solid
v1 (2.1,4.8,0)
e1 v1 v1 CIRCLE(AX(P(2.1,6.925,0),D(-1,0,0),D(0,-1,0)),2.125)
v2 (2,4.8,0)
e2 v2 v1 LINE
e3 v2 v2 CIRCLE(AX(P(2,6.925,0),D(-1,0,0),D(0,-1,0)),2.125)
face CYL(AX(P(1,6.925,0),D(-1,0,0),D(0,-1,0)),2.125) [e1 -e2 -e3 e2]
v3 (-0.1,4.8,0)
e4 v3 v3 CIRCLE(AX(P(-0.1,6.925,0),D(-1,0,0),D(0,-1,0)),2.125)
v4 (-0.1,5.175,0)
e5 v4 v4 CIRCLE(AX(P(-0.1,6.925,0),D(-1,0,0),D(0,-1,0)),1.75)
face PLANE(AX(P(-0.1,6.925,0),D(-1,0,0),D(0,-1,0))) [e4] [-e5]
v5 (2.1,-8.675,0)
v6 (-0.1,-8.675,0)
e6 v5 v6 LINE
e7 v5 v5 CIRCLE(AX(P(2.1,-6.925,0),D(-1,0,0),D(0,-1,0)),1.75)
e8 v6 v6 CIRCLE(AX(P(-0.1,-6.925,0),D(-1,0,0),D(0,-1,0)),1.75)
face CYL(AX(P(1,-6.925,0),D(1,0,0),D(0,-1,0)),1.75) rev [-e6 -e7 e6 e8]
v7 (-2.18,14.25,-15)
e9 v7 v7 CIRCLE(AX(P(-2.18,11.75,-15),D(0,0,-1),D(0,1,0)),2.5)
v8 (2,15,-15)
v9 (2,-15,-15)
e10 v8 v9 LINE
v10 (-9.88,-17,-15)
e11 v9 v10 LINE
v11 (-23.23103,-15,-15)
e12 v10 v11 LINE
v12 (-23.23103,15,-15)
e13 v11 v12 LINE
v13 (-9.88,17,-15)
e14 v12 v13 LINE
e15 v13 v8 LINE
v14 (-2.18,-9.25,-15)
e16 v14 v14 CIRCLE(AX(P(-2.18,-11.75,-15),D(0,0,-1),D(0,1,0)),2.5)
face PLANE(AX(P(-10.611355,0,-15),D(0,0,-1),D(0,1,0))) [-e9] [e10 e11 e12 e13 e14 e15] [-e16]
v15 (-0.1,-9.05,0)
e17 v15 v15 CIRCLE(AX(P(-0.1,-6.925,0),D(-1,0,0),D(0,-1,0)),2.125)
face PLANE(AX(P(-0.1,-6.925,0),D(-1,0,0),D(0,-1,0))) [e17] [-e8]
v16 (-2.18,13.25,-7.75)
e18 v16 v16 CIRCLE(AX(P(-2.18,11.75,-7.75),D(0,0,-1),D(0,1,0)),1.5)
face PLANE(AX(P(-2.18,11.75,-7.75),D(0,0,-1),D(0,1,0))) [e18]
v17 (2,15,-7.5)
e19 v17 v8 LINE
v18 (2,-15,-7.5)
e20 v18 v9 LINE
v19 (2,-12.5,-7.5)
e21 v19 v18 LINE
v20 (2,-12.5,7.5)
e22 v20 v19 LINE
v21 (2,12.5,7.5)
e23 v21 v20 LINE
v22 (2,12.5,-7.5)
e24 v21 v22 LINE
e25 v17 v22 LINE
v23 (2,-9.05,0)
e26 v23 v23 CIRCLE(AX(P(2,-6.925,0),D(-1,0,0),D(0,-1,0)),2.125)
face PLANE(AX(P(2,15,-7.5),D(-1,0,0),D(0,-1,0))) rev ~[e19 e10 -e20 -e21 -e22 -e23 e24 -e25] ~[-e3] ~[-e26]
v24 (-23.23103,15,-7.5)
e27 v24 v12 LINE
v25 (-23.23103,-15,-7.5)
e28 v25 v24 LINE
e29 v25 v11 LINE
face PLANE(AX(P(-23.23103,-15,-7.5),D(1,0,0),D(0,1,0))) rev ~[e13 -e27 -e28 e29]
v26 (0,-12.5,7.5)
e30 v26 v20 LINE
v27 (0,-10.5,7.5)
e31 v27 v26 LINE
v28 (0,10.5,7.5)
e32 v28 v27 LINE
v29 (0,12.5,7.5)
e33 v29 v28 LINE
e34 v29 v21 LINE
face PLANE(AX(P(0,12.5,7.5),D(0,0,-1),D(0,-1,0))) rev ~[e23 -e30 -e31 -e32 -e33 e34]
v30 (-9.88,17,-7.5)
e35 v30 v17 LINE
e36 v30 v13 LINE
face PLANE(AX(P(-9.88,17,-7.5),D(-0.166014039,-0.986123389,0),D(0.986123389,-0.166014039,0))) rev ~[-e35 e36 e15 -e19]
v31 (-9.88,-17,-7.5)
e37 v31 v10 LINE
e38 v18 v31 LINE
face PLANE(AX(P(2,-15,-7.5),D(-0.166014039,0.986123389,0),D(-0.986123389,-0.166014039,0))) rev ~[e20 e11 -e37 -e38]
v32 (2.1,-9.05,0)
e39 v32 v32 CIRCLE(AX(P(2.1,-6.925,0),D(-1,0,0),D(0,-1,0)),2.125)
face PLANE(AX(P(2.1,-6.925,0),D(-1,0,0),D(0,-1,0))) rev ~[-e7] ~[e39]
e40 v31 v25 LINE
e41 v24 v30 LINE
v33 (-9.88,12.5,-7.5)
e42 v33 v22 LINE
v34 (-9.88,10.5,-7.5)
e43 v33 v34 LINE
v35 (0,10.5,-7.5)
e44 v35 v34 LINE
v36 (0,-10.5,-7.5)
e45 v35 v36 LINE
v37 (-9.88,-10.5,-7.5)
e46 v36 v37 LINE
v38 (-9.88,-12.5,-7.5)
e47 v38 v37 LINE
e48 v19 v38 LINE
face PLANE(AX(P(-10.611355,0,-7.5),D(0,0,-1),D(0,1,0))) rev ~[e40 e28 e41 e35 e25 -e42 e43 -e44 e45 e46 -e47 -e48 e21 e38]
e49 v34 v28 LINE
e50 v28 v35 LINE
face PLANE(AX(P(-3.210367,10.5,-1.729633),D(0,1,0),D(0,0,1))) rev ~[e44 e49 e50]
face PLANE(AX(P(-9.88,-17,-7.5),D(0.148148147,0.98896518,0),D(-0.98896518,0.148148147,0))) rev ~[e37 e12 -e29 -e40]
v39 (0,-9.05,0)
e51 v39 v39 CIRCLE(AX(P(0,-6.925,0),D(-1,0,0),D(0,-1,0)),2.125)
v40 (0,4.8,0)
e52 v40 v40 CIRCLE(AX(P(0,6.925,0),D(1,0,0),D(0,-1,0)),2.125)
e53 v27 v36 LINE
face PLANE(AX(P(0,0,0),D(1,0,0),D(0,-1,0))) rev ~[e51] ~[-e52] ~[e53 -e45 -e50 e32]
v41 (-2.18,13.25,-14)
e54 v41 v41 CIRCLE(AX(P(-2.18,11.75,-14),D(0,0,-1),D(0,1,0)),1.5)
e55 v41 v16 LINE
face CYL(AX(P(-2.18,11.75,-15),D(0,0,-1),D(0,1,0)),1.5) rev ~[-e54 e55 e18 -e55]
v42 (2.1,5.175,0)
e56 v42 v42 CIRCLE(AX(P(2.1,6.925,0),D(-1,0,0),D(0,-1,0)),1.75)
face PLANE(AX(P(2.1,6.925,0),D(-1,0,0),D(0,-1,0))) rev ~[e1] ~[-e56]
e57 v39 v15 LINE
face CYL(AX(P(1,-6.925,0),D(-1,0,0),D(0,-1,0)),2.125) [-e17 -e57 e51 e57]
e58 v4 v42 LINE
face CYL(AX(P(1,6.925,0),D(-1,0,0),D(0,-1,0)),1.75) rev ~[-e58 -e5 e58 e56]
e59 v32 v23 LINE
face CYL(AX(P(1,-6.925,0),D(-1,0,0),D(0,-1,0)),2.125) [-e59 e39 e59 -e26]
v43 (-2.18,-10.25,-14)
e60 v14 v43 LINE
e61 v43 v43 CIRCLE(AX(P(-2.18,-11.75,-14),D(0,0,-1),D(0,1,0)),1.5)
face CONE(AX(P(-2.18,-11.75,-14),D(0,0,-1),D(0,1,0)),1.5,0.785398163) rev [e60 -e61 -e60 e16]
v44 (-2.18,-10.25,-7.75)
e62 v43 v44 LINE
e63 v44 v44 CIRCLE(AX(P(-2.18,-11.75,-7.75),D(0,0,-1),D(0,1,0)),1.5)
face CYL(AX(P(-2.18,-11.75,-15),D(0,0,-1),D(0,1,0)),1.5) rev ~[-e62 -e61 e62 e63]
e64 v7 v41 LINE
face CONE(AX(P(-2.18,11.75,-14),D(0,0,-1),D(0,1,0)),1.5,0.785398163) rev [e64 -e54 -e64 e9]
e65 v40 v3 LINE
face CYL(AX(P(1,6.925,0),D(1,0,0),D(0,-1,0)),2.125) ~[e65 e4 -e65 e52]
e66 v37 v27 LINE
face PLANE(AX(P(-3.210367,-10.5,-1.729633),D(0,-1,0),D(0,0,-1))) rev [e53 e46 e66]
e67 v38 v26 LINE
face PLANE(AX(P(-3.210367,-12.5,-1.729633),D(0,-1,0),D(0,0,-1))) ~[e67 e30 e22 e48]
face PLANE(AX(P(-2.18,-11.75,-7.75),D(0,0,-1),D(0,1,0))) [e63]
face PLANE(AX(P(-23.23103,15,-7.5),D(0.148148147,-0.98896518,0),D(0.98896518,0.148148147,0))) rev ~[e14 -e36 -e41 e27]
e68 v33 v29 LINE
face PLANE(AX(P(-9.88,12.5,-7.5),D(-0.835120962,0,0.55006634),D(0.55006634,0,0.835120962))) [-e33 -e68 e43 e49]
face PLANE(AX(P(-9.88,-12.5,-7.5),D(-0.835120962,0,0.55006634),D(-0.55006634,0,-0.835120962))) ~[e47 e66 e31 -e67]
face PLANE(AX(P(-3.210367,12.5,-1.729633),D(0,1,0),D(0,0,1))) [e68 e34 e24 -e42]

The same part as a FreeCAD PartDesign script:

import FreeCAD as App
import Part
import Sketcher

V = App.Vector
Q = App.Units.Quantity


def edges_at(feature, points):
    """Names of the edges that pass closest to the given points."""
    edges = feature.Shape.Edges
    near = lambda p: min(range(len(edges)), key=lambda i: edges[i].distToShape(Part.Vertex(*p))[0])
    return sorted({f"Edge{near(p) + 1}" for p in points})

doc = App.newDocument("Part")
body = doc.addObject("PartDesign::Body", "Body")

# Sketch on YZ plane
sketch1 = doc.addObject("Sketcher::SketchObject", "Sketch")
body.addObject(sketch1)
sketch1.AttachmentSupport = (doc.YZ_Plane, [""])
sketch1.MapMode = "FlatFace"
sketch1.addGeometry([
    Part.LineSegment(V(-12, 8, 0), V(-12, -8, 0)),
    Part.LineSegment(V(-12, -8, 0), V(12, -8, 0)),
    Part.LineSegment(V(12, -8, 0), V(12, 8, 0)),
    Part.LineSegment(V(12, 8, 0), V(-12, 8, 0)),
], False)
sketch1.addConstraint([
    Sketcher.Constraint("Coincident", 0, 2, 1, 1),
    Sketcher.Constraint("Coincident", 1, 2, 2, 1),
    Sketcher.Constraint("Coincident", 2, 2, 3, 1),
    Sketcher.Constraint("Coincident", 3, 2, 0, 1),
    Sketcher.Constraint("Vertical", 0),
    Sketcher.Constraint("Horizontal", 1),
    Sketcher.Constraint("Vertical", 2),
    Sketcher.Constraint("Horizontal", 3),
    Sketcher.Constraint("Symmetric", 0, 2, 2, 2, -1, 1),
    Sketcher.Constraint("DistanceX", 1, 1, 1, 2, Q("25 mm")),
    Sketcher.Constraint("DistanceY", 0, 2, 0, 1, Q("15 mm")),
])
pad1 = doc.addObject("PartDesign::Pad", "Pad")
body.addObject(pad1)
pad1.Profile = sketch1
pad1.Length = 2

# Sketch on XY plane
sketch2 = doc.addObject("Sketcher::SketchObject", "Sketch001")
body.addObject(sketch2)
sketch2.AttachmentSupport = (doc.XY_Plane, [""])
sketch2.MapMode = "FlatFace"
sketch2.AttachmentOffset = App.Placement(V(0, 0, 7.5), App.Rotation())
sketch2.addGeometry([
    Part.LineSegment(V(-23, 15, 0), V(-23, -15, 0)),  # 0
    Part.LineSegment(V(-23, -15, 0), V(-10, -17, 0)),  # 1
    Part.LineSegment(V(-10, -17, 0), V(2, -15, 0)),  # 2
    Part.LineSegment(V(2, -15, 0), V(2, 15, 0)),  # 3
    Part.LineSegment(V(2, 15, 0), V(-10, 17, 0)),  # 4
    Part.LineSegment(V(-10, 17, 0), V(-23, 15, 0)),  # 5
], False)
sketch2.addConstraint([
    Sketcher.Constraint("Coincident", 0, 2, 1, 1),
    Sketcher.Constraint("Coincident", 1, 2, 2, 1),
    Sketcher.Constraint("Coincident", 2, 2, 3, 1),
    Sketcher.Constraint("Coincident", 3, 2, 4, 1),
    Sketcher.Constraint("Coincident", 4, 2, 5, 1),
    Sketcher.Constraint("Coincident", 5, 2, 0, 1),
    Sketcher.Constraint("Vertical", 0),
    Sketcher.Constraint("Vertical", 3),
    Sketcher.Constraint("Symmetric", 1, 2, 4, 2, -1),
    Sketcher.Constraint("Horizontal", 0, 2, 2, 2),
    Sketcher.Constraint("Horizontal", 3, 2, 5, 2),
    Sketcher.Constraint("Equal", 2, 4),
    Sketcher.Constraint("DistanceY", 0, 2, 0, 1, Q("30 mm")),
    Sketcher.Constraint("DistanceY", 1, 2, -1, 1, Q("17 mm")),
    Sketcher.Constraint("DistanceX", -1, 1, 2, 2, Q("2 mm")),
    Sketcher.Constraint("Distance", 1, Q("13.5 mm")),
    Sketcher.Constraint("DistanceX", 1, 2, -1, 1, Q("9.88 mm")),
])
pad2 = doc.addObject("PartDesign::Pad", "Pad001")
body.addObject(pad2)
pad2.Profile = sketch2
pad2.Length = 7.5

# Sketch on XY plane
sketch3 = doc.addObject("Sketcher::SketchObject", "Sketch002")
body.addObject(sketch3)
sketch3.AttachmentSupport = (doc.XY_Plane, [""])
sketch3.MapMode = "FlatFace"
sketch3.AttachmentOffset = App.Placement(V(0, 0, 15), App.Rotation())
sketch3.addGeometry([
    Part.Circle(V(-2.2, -11.8, 0), V(0, 0, 1), 1.5),
    Part.Circle(V(-2.2, 11.8, 0), V(0, 0, 1), 1.5),
], False)
sketch3.addConstraint([
    Sketcher.Constraint("Equal", 0, 1),
    Sketcher.Constraint("Symmetric", 0, 3, 1, 3, -1),
    Sketcher.Constraint("Diameter", 0, Q("3 mm")),
    Sketcher.Constraint("DistanceY", 0, 3, 1, 3, Q("23.5 mm")),
    Sketcher.Constraint("DistanceX", 0, 3, -1, 1, Q("2.18 mm")),
])
pocket1 = doc.addObject("PartDesign::Pocket", "Pocket")
body.addObject(pocket1)
pocket1.Profile = sketch3
pocket1.Length = 7.25

# Sketch on YZ plane
sketch4 = doc.addObject("Sketcher::SketchObject", "Sketch003")
body.addObject(sketch4)
sketch4.AttachmentSupport = (doc.YZ_Plane, [""])
sketch4.MapMode = "FlatFace"
sketch4.addGeometry([
    Part.Circle(V(-6.9, 0, 0), V(0, 0, 1), 1.8),
    Part.Circle(V(6.9, 0, 0), V(0, 0, 1), 1.8),
], False)
sketch4.addConstraint([
    Sketcher.Constraint("Equal", 0, 1),
    Sketcher.Constraint("Symmetric", 0, 3, 1, 3, -1, 1),
    Sketcher.Constraint("PointOnObject", 0, 3, -1),
    Sketcher.Constraint("Diameter", 0, Q("3.5 mm")),
    Sketcher.Constraint("DistanceX", 0, 3, 1, 3, Q("13.85 mm")),
])
pocket2 = doc.addObject("PartDesign::Pocket", "Pocket001")
body.addObject(pocket2)
pocket2.Profile = sketch4
pocket2.Length = 5
pocket2.Reversed = True

# Sketch on XZ plane
sketch5 = doc.addObject("Sketcher::SketchObject", "Sketch004")
body.addObject(sketch5)
sketch5.AttachmentSupport = (doc.XZ_Plane, [""])
sketch5.MapMode = "FlatFace"
sketch5.AttachmentOffset = App.Placement(V(0, 0, 12.5), App.Rotation())
sketch5.addGeometry([
    Part.LineSegment(V(-10, 8, 0), V(0, -8, 0)),
    Part.LineSegment(V(0, -8, 0), V(0, 8, 0)),
    Part.LineSegment(V(0, 8, 0), V(-10, 8, 0)),
], False)
sketch5.addConstraint([
    Sketcher.Constraint("Coincident", 0, 2, 1, 1),
    Sketcher.Constraint("Coincident", 1, 2, 2, 1),
    Sketcher.Constraint("Coincident", 2, 2, 0, 1),
    Sketcher.Constraint("Vertical", 1),
    Sketcher.Constraint("Horizontal", 2),
    Sketcher.Constraint("Symmetric", 0, 2, 1, 2, -1, 1),
    Sketcher.Constraint("DistanceY", 1, 1, 1, 2, Q("15 mm")),
    Sketcher.Constraint("DistanceX", 2, 2, 2, 1, Q("9.88 mm")),
])
pad3 = doc.addObject("PartDesign::Pad", "Pad002")
body.addObject(pad3)
pad3.Profile = sketch5
pad3.Length = 2
pad3.Reversed = True
doc.recompute()

mirrored = doc.addObject("PartDesign::Mirrored", "Mirrored")
body.addObject(mirrored)
mirrored.Originals = [pad3]
mirrored.MirrorPlane = (doc.XZ_Plane, [""])
body.Tip = mirrored
doc.recompute()

chamfer = doc.addObject("PartDesign::Chamfer", "Chamfer")
body.addObject(chamfer)
chamfer.Base = (mirrored, edges_at(mirrored, [(-2.18, 13.25, 15), (-2.18, -10.25, 15)]))
chamfer.Size = 1

# Sketch on YZ plane
sketch6 = doc.addObject("Sketcher::SketchObject", "Sketch005")
body.addObject(sketch6)
sketch6.AttachmentSupport = (doc.YZ_Plane, [""])
sketch6.MapMode = "FlatFace"
sketch6.AttachmentOffset = App.Placement(V(0, 0, 1), App.Rotation())
sketch6.addGeometry([
    Part.Circle(V(-6.9, 0, 0), V(0, 0, 1), 2.1),
    Part.Circle(V(-6.9, 0, 0), V(0, 0, 1), 1.8),
    Part.Circle(V(6.9, 0, 0), V(0, 0, 1), 2.1),
    Part.Circle(V(6.9, 0, 0), V(0, 0, 1), 1.8),
], False)
sketch6.addConstraint([
    Sketcher.Constraint("Coincident", 1, 3, 0, 3),
    Sketcher.Constraint("Coincident", 3, 3, 2, 3),
    Sketcher.Constraint("Equal", 0, 2),
    Sketcher.Constraint("Equal", 1, 3),
    Sketcher.Constraint("Symmetric", 0, 3, 2, 3, -1, 1),
    Sketcher.Constraint("PointOnObject", 0, 3, -1),
    Sketcher.Constraint("Diameter", 1, Q("3.5 mm")),
    Sketcher.Constraint("Diameter", 0, Q("4.25 mm")),
    Sketcher.Constraint("DistanceX", 0, 3, 2, 3, Q("13.85 mm")),
])
pad4 = doc.addObject("PartDesign::Pad", "Pad003")
body.addObject(pad4)
pad4.Profile = sketch6
pad4.Length = 2.2
pad4.Midplane = True
body2 = doc.addObject("PartDesign::Body", "Body001")
doc.recompute()

body.Placement = App.Placement(V(0, 0, 0), App.Rotation(V(1, 0, 0), 180))
boolean = doc.addObject("PartDesign::Boolean", "Boolean")
body2.addObject(boolean)
boolean.Type = "Fuse"
boolean.addObjects([body])

doc.recompute()
